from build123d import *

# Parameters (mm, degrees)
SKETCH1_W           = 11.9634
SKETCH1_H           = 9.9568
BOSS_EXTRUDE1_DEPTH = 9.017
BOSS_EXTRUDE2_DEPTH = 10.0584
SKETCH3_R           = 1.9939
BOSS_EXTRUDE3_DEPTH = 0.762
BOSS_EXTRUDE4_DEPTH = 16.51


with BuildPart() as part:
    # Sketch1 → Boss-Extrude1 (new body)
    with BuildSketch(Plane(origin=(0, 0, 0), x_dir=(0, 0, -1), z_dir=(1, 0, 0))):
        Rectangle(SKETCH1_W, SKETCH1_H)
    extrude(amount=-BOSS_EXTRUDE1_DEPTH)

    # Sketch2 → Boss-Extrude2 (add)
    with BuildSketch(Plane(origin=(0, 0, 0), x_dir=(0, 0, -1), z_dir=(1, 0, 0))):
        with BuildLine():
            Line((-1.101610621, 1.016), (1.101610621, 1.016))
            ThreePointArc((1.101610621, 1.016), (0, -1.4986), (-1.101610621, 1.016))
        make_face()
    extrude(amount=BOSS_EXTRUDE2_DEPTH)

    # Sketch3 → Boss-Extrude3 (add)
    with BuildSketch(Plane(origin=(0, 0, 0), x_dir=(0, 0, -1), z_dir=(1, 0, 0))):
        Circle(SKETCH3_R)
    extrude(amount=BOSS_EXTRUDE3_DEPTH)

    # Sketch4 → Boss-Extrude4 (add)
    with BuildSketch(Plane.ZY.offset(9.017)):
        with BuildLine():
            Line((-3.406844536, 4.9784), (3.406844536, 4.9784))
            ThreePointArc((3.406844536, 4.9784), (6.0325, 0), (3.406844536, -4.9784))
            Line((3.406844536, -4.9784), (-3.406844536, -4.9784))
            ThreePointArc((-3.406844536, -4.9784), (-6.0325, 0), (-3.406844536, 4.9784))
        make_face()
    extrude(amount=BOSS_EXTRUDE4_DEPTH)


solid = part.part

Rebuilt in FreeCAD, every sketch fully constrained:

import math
import FreeCAD as App
import Part
import Sketcher
from FreeCAD import Vector
Q = App.Units.Quantity

doc = App.newDocument("Part")
body = doc.addObject("PartDesign::Body", "Body")

# Sketch on YZ plane
sketch1 = body.newObject("Sketcher::SketchObject", "Sketch")
sketch1.AttachmentSupport = (doc.getObject("YZ_Plane"), [""])
sketch1.MapMode = "FlatFace"
sketch1.addGeometry([
    Part.LineSegment(Vector(5, 6, 0), Vector(-5, 6, 0)),
    Part.LineSegment(Vector(-5, 6, 0), Vector(-5, -6, 0)),
    Part.LineSegment(Vector(-5, -6, 0), Vector(5, -6, 0)),
    Part.LineSegment(Vector(5, -6, 0), Vector(5, 6, 0)),
], False)
sketch1.addConstraint([
    Sketcher.Constraint("Coincident", 0, 2, 1, 1),
    Sketcher.Constraint("Coincident", 1, 2, 2, 1),
    Sketcher.Constraint("Coincident", 2, 2, 3, 1),
    Sketcher.Constraint("Coincident", 3, 2, 0, 1),
    Sketcher.Constraint("Horizontal", 0),
    Sketcher.Constraint("Vertical", 1),
    Sketcher.Constraint("Horizontal", 2),
    Sketcher.Constraint("Vertical", 3),
    Sketcher.Constraint("Symmetric", 0, 2, 2, 2, -1, 1),
    Sketcher.Constraint("DistanceX", 0, 2, 0, 1, Q("0.392 in")),
    Sketcher.Constraint("DistanceY", 1, 2, 1, 1, Q("0.471 in")),
])
pad1 = body.newObject("PartDesign::Pad", "Pad")
pad1.Profile = sketch1
pad1.Length = Q("0.355 in")
pad1.Reversed = True

# Sketch on YZ plane
sketch2 = body.newObject("Sketcher::SketchObject", "Sketch001")
sketch2.AttachmentSupport = (doc.getObject("YZ_Plane"), [""])
sketch2.MapMode = "FlatFace"
sketch2.addGeometry([
    Part.LineSegment(Vector(1, -1.1, 0), Vector(1, 1.1, 0)),
    Part.ArcOfCircle(Part.Circle(Vector(0, 0, 0), Vector(0, 0, 1), 1.5), math.radians(47), math.radians(313)),
], False)
sketch2.addConstraint([
    Sketcher.Constraint("Coincident", 0, 1, 1, 2),
    Sketcher.Constraint("Coincident", 1, 1, 0, 2),
    Sketcher.Constraint("Vertical", 0),
    Sketcher.Constraint("Coincident", 1, 3, -1, 1),
    Sketcher.Constraint("Radius", 1, Q("0.059 in")),
    Sketcher.Constraint("DistanceX", -1, 1, 0, 1, Q("0.04 in")),
])
pad2 = body.newObject("PartDesign::Pad", "Pad001")
pad2.Profile = sketch2
pad2.Length = Q("0.396 in")

# Sketch on YZ plane
sketch3 = body.newObject("Sketcher::SketchObject", "Sketch002")
sketch3.AttachmentSupport = (doc.getObject("YZ_Plane"), [""])
sketch3.MapMode = "FlatFace"
sketch3.addGeometry(Part.Circle(Vector(0, 0, 0), Vector(0, 0, 1), 2), False)
sketch3.addConstraint([
    Sketcher.Constraint("Coincident", 0, 3, -1, 1),
    Sketcher.Constraint("Diameter", 0, Q("0.157 in")),
])
pad3 = body.newObject("PartDesign::Pad", "Pad002")
pad3.Profile = sketch3
pad3.Length = Q("0.03 in")

# Sketch on YZ plane
sketch4 = body.newObject("Sketcher::SketchObject", "Sketch003")
sketch4.AttachmentSupport = (doc.getObject("YZ_Plane"), [""])
sketch4.MapMode = "FlatFace"
sketch4.AttachmentOffset = App.Placement(Vector(0, 0, -0.355 * 25.4), App.Rotation())
sketch4.addGeometry([
    Part.LineSegment(Vector(5, 3, 0), Vector(5, -3, 0)),
    Part.ArcOfCircle(Part.Circle(Vector(0, 0, 0), Vector(0, 0, 1), 6), math.radians(-146), math.radians(-34)),
    Part.LineSegment(Vector(-5, -3, 0), Vector(-5, 3, 0)),
    Part.ArcOfCircle(Part.Circle(Vector(0, 0, 0), Vector(0, 0, 1), 6), math.radians(34), math.radians(146)),
], False)
sketch4.addConstraint([
    Sketcher.Constraint("Coincident", 0, 2, 1, 2),
    Sketcher.Constraint("Coincident", 1, 1, 2, 1),
    Sketcher.Constraint("Coincident", 2, 2, 3, 2),
    Sketcher.Constraint("Coincident", 3, 1, 0, 1),
    Sketcher.Constraint("Vertical", 0),
    Sketcher.Constraint("Vertical", 2),
    Sketcher.Constraint("Coincident", 1, 3, -1, 1),
    Sketcher.Constraint("Coincident", 3, 3, -1, 1),
    Sketcher.Constraint("Equal", 1, 3),
    Sketcher.Constraint("Horizontal", 0, 2, 1, 1),
    Sketcher.Constraint("Radius", 1, Q("0.2375 in")),
    Sketcher.Constraint("DistanceX", -1, 1, 0, 2, Q("0.196 in")),
])
pad4 = body.newObject("PartDesign::Pad", "Pad003")
pad4.Profile = sketch4
pad4.Length = Q("0.65 in")
pad4.Reversed = True

doc.recompute()
